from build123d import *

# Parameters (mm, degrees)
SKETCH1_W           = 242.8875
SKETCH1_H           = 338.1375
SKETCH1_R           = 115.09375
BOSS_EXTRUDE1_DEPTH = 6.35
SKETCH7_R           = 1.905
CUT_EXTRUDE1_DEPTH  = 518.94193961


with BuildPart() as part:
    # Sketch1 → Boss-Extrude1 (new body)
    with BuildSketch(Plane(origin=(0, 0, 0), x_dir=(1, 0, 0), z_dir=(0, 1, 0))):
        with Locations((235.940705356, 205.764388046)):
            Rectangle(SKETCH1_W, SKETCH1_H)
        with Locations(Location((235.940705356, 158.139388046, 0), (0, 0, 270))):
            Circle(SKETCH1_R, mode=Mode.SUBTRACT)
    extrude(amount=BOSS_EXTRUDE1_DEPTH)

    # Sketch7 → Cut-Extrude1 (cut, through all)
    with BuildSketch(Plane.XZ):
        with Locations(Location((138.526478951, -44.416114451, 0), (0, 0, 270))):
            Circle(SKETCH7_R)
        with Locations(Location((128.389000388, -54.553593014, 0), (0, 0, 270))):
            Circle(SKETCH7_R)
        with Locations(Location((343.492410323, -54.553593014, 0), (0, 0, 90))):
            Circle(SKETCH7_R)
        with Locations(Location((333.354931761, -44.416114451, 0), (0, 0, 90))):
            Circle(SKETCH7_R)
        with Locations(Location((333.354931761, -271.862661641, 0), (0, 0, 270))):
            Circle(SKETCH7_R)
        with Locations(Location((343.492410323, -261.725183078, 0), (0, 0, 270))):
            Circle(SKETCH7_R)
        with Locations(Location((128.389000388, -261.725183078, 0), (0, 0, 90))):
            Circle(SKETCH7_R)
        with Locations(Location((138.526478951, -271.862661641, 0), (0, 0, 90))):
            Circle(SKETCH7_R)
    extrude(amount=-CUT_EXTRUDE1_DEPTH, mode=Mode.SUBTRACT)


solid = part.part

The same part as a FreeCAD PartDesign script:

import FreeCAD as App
import Part
import Sketcher
Q = App.Units.Quantity


def add_polygon(sketch, points):
    """Adds a closed chain of lines whose ends are joined by coincident constraints."""
    first, n = sketch.GeometryCount, len(points)
    for a, b in zip(points, points[1:] + points[:1]):
        sketch.addGeometry(Part.LineSegment(App.Vector(*a, 0), App.Vector(*b, 0)), False)
    for i in range(n):
        sketch.addConstraint(Sketcher.Constraint("Coincident", first + i, 2, first + (i + 1) % n, 1))

doc = App.newDocument("Part")
params = doc.addObject("Spreadsheet::Sheet", "Params")
for row, (alias, value) in enumerate([
    ("sketch1_diameter", "9.0625 in"),
    ("sketch1_width", "9.5625 in"),
    ("sketch1_height", "13.3125 in"),
    ("pad1_length", "0.25 in"),
    ("sketch2_diameter", "0.15 in"),
], start=1):
    params.set(f"A{row}", alias)
    params.set(f"B{row}", "=" + value)
    params.setAlias(f"B{row}", alias)

body = doc.addObject("PartDesign::Body", "Body")

sketch1 = body.newObject("Sketcher::SketchObject", "Sketch")
sketch1.AttachmentSupport = (doc.getObject("XZ_Plane"), [""])
sketch1.MapMode = "FlatFace"
add_polygon(sketch1, [(114, -375), (114, -37), (357, -37), (357, -375)])
sketch1.addGeometry(Part.Circle(App.Vector(236, -158, 0), App.Vector(0, 0, 1), 115), False)
sketch1.addConstraint(Sketcher.Constraint("Vertical", 0))
sketch1.addConstraint(Sketcher.Constraint("Horizontal", 1))
sketch1.addConstraint(Sketcher.Constraint("Vertical", 2))
sketch1.addConstraint(Sketcher.Constraint("Horizontal", 3))
sketch1.addConstraint(Sketcher.Constraint("Diameter", 4, Q("9.0625 in")))
sketch1.addConstraint(Sketcher.Constraint("DistanceX", 1, 1, 1, 2, Q("9.5625 in")))
sketch1.addConstraint(Sketcher.Constraint("DistanceY", 0, 1, 0, 2, Q("13.3125 in")))
sketch1.addConstraint(Sketcher.Constraint("DistanceX", 0, 2, 4, 3, Q("4.78125 in")))
sketch1.addConstraint(Sketcher.Constraint("DistanceY", 4, 3, 0, 2, Q("4.78125 in")))
sketch1.addConstraint(Sketcher.Constraint("DistanceY", 4, 3, -1, 1, 158.139388))
sketch1.addConstraint(Sketcher.Constraint("DistanceX", -1, 1, 4, 3, 235.940705))
sketch1.setExpression("Constraints[8]", "Params.sketch1_diameter")
sketch1.setExpression("Constraints[9]", "Params.sketch1_width")
sketch1.setExpression("Constraints[10]", "Params.sketch1_height")
pad1 = body.newObject("PartDesign::Pad", "Pad")
pad1.Profile = sketch1
pad1.setExpression("Length", "Params.pad1_length")
pad1.Reversed = True

sketch2 = body.newObject("Sketcher::SketchObject", "Sketch001")
sketch2.AttachmentSupport = (doc.getObject("XZ_Plane"), [""])
sketch2.MapMode = "FlatFace"
sketch2.addGeometry(Part.Circle(App.Vector(138.5, -44.4, 0), App.Vector(0, 0, 1), 1.9), False)
sketch2.addGeometry(Part.Circle(App.Vector(128.4, -54.6, 0), App.Vector(0, 0, 1), 1.9), False)
sketch2.addGeometry(Part.Circle(App.Vector(343.5, -54.6, 0), App.Vector(0, 0, 1), 1.9), False)
sketch2.addGeometry(Part.Circle(App.Vector(333.4, -44.4, 0), App.Vector(0, 0, 1), 1.9), False)
sketch2.addGeometry(Part.Circle(App.Vector(333.4, -271.9, 0), App.Vector(0, 0, 1), 1.9), False)
sketch2.addGeometry(Part.Circle(App.Vector(343.5, -261.7, 0), App.Vector(0, 0, 1), 1.9), False)
sketch2.addGeometry(Part.Circle(App.Vector(128.4, -261.7, 0), App.Vector(0, 0, 1), 1.9), False)
sketch2.addGeometry(Part.Circle(App.Vector(138.5, -271.9, 0), App.Vector(0, 0, 1), 1.9), False)
sketch2.addConstraint(Sketcher.Constraint("Equal", 0, 1))
sketch2.addConstraint(Sketcher.Constraint("Equal", 1, 2))
sketch2.addConstraint(Sketcher.Constraint("Equal", 2, 3))
sketch2.addConstraint(Sketcher.Constraint("Equal", 3, 4))
sketch2.addConstraint(Sketcher.Constraint("Equal", 4, 5))
sketch2.addConstraint(Sketcher.Constraint("Equal", 5, 6))
sketch2.addConstraint(Sketcher.Constraint("Equal", 6, 7))
sketch2.addConstraint(Sketcher.Constraint("Horizontal", 1, 3, 2, 3))
sketch2.addConstraint(Sketcher.Constraint("Horizontal", 0, 3, 3, 3))
sketch2.addConstraint(Sketcher.Constraint("Horizontal", 5, 3, 6, 3))
sketch2.addConstraint(Sketcher.Constraint("Horizontal", 4, 3, 7, 3))
sketch2.addConstraint(Sketcher.Constraint("Vertical", 3, 3, 4, 3))
sketch2.addConstraint(Sketcher.Constraint("Vertical", 2, 3, 5, 3))
sketch2.addConstraint(Sketcher.Constraint("Vertical", 1, 3, 6, 3))
sketch2.addConstraint(Sketcher.Constraint("Vertical", 0, 3, 7, 3))
sketch2.addConstraint(Sketcher.Constraint("Diameter", 0, Q("0.15 in")))
sketch2.addConstraint(Sketcher.Constraint("DistanceX", -1, 1, 1, 3, 128.389))
sketch2.addConstraint(Sketcher.Constraint("DistanceX", -1, 1, 0, 3, 138.526479))
sketch2.addConstraint(Sketcher.Constraint("DistanceX", -1, 1, 2, 3, 343.49241))
sketch2.addConstraint(Sketcher.Constraint("DistanceX", -1, 1, 3, 3, 333.354932))
sketch2.addConstraint(Sketcher.Constraint("DistanceY", 4, 3, -1, 1, 271.862662))
sketch2.addConstraint(Sketcher.Constraint("DistanceY", 1, 3, 0, 3, 10.137479))
sketch2.addConstraint(Sketcher.Constraint("DistanceY", 4, 3, 2, 3, 217.309069))
sketch2.addConstraint(Sketcher.Constraint("DistanceY", 4, 3, 5, 3, 10.137479))
sketch2.setExpression("Constraints[15]", "Params.sketch2_diameter")
pocket1 = body.newObject("PartDesign::Pocket", "Pocket")
pocket1.Profile = sketch2
pocket1.Type = "ThroughAll"

doc.recompute()
